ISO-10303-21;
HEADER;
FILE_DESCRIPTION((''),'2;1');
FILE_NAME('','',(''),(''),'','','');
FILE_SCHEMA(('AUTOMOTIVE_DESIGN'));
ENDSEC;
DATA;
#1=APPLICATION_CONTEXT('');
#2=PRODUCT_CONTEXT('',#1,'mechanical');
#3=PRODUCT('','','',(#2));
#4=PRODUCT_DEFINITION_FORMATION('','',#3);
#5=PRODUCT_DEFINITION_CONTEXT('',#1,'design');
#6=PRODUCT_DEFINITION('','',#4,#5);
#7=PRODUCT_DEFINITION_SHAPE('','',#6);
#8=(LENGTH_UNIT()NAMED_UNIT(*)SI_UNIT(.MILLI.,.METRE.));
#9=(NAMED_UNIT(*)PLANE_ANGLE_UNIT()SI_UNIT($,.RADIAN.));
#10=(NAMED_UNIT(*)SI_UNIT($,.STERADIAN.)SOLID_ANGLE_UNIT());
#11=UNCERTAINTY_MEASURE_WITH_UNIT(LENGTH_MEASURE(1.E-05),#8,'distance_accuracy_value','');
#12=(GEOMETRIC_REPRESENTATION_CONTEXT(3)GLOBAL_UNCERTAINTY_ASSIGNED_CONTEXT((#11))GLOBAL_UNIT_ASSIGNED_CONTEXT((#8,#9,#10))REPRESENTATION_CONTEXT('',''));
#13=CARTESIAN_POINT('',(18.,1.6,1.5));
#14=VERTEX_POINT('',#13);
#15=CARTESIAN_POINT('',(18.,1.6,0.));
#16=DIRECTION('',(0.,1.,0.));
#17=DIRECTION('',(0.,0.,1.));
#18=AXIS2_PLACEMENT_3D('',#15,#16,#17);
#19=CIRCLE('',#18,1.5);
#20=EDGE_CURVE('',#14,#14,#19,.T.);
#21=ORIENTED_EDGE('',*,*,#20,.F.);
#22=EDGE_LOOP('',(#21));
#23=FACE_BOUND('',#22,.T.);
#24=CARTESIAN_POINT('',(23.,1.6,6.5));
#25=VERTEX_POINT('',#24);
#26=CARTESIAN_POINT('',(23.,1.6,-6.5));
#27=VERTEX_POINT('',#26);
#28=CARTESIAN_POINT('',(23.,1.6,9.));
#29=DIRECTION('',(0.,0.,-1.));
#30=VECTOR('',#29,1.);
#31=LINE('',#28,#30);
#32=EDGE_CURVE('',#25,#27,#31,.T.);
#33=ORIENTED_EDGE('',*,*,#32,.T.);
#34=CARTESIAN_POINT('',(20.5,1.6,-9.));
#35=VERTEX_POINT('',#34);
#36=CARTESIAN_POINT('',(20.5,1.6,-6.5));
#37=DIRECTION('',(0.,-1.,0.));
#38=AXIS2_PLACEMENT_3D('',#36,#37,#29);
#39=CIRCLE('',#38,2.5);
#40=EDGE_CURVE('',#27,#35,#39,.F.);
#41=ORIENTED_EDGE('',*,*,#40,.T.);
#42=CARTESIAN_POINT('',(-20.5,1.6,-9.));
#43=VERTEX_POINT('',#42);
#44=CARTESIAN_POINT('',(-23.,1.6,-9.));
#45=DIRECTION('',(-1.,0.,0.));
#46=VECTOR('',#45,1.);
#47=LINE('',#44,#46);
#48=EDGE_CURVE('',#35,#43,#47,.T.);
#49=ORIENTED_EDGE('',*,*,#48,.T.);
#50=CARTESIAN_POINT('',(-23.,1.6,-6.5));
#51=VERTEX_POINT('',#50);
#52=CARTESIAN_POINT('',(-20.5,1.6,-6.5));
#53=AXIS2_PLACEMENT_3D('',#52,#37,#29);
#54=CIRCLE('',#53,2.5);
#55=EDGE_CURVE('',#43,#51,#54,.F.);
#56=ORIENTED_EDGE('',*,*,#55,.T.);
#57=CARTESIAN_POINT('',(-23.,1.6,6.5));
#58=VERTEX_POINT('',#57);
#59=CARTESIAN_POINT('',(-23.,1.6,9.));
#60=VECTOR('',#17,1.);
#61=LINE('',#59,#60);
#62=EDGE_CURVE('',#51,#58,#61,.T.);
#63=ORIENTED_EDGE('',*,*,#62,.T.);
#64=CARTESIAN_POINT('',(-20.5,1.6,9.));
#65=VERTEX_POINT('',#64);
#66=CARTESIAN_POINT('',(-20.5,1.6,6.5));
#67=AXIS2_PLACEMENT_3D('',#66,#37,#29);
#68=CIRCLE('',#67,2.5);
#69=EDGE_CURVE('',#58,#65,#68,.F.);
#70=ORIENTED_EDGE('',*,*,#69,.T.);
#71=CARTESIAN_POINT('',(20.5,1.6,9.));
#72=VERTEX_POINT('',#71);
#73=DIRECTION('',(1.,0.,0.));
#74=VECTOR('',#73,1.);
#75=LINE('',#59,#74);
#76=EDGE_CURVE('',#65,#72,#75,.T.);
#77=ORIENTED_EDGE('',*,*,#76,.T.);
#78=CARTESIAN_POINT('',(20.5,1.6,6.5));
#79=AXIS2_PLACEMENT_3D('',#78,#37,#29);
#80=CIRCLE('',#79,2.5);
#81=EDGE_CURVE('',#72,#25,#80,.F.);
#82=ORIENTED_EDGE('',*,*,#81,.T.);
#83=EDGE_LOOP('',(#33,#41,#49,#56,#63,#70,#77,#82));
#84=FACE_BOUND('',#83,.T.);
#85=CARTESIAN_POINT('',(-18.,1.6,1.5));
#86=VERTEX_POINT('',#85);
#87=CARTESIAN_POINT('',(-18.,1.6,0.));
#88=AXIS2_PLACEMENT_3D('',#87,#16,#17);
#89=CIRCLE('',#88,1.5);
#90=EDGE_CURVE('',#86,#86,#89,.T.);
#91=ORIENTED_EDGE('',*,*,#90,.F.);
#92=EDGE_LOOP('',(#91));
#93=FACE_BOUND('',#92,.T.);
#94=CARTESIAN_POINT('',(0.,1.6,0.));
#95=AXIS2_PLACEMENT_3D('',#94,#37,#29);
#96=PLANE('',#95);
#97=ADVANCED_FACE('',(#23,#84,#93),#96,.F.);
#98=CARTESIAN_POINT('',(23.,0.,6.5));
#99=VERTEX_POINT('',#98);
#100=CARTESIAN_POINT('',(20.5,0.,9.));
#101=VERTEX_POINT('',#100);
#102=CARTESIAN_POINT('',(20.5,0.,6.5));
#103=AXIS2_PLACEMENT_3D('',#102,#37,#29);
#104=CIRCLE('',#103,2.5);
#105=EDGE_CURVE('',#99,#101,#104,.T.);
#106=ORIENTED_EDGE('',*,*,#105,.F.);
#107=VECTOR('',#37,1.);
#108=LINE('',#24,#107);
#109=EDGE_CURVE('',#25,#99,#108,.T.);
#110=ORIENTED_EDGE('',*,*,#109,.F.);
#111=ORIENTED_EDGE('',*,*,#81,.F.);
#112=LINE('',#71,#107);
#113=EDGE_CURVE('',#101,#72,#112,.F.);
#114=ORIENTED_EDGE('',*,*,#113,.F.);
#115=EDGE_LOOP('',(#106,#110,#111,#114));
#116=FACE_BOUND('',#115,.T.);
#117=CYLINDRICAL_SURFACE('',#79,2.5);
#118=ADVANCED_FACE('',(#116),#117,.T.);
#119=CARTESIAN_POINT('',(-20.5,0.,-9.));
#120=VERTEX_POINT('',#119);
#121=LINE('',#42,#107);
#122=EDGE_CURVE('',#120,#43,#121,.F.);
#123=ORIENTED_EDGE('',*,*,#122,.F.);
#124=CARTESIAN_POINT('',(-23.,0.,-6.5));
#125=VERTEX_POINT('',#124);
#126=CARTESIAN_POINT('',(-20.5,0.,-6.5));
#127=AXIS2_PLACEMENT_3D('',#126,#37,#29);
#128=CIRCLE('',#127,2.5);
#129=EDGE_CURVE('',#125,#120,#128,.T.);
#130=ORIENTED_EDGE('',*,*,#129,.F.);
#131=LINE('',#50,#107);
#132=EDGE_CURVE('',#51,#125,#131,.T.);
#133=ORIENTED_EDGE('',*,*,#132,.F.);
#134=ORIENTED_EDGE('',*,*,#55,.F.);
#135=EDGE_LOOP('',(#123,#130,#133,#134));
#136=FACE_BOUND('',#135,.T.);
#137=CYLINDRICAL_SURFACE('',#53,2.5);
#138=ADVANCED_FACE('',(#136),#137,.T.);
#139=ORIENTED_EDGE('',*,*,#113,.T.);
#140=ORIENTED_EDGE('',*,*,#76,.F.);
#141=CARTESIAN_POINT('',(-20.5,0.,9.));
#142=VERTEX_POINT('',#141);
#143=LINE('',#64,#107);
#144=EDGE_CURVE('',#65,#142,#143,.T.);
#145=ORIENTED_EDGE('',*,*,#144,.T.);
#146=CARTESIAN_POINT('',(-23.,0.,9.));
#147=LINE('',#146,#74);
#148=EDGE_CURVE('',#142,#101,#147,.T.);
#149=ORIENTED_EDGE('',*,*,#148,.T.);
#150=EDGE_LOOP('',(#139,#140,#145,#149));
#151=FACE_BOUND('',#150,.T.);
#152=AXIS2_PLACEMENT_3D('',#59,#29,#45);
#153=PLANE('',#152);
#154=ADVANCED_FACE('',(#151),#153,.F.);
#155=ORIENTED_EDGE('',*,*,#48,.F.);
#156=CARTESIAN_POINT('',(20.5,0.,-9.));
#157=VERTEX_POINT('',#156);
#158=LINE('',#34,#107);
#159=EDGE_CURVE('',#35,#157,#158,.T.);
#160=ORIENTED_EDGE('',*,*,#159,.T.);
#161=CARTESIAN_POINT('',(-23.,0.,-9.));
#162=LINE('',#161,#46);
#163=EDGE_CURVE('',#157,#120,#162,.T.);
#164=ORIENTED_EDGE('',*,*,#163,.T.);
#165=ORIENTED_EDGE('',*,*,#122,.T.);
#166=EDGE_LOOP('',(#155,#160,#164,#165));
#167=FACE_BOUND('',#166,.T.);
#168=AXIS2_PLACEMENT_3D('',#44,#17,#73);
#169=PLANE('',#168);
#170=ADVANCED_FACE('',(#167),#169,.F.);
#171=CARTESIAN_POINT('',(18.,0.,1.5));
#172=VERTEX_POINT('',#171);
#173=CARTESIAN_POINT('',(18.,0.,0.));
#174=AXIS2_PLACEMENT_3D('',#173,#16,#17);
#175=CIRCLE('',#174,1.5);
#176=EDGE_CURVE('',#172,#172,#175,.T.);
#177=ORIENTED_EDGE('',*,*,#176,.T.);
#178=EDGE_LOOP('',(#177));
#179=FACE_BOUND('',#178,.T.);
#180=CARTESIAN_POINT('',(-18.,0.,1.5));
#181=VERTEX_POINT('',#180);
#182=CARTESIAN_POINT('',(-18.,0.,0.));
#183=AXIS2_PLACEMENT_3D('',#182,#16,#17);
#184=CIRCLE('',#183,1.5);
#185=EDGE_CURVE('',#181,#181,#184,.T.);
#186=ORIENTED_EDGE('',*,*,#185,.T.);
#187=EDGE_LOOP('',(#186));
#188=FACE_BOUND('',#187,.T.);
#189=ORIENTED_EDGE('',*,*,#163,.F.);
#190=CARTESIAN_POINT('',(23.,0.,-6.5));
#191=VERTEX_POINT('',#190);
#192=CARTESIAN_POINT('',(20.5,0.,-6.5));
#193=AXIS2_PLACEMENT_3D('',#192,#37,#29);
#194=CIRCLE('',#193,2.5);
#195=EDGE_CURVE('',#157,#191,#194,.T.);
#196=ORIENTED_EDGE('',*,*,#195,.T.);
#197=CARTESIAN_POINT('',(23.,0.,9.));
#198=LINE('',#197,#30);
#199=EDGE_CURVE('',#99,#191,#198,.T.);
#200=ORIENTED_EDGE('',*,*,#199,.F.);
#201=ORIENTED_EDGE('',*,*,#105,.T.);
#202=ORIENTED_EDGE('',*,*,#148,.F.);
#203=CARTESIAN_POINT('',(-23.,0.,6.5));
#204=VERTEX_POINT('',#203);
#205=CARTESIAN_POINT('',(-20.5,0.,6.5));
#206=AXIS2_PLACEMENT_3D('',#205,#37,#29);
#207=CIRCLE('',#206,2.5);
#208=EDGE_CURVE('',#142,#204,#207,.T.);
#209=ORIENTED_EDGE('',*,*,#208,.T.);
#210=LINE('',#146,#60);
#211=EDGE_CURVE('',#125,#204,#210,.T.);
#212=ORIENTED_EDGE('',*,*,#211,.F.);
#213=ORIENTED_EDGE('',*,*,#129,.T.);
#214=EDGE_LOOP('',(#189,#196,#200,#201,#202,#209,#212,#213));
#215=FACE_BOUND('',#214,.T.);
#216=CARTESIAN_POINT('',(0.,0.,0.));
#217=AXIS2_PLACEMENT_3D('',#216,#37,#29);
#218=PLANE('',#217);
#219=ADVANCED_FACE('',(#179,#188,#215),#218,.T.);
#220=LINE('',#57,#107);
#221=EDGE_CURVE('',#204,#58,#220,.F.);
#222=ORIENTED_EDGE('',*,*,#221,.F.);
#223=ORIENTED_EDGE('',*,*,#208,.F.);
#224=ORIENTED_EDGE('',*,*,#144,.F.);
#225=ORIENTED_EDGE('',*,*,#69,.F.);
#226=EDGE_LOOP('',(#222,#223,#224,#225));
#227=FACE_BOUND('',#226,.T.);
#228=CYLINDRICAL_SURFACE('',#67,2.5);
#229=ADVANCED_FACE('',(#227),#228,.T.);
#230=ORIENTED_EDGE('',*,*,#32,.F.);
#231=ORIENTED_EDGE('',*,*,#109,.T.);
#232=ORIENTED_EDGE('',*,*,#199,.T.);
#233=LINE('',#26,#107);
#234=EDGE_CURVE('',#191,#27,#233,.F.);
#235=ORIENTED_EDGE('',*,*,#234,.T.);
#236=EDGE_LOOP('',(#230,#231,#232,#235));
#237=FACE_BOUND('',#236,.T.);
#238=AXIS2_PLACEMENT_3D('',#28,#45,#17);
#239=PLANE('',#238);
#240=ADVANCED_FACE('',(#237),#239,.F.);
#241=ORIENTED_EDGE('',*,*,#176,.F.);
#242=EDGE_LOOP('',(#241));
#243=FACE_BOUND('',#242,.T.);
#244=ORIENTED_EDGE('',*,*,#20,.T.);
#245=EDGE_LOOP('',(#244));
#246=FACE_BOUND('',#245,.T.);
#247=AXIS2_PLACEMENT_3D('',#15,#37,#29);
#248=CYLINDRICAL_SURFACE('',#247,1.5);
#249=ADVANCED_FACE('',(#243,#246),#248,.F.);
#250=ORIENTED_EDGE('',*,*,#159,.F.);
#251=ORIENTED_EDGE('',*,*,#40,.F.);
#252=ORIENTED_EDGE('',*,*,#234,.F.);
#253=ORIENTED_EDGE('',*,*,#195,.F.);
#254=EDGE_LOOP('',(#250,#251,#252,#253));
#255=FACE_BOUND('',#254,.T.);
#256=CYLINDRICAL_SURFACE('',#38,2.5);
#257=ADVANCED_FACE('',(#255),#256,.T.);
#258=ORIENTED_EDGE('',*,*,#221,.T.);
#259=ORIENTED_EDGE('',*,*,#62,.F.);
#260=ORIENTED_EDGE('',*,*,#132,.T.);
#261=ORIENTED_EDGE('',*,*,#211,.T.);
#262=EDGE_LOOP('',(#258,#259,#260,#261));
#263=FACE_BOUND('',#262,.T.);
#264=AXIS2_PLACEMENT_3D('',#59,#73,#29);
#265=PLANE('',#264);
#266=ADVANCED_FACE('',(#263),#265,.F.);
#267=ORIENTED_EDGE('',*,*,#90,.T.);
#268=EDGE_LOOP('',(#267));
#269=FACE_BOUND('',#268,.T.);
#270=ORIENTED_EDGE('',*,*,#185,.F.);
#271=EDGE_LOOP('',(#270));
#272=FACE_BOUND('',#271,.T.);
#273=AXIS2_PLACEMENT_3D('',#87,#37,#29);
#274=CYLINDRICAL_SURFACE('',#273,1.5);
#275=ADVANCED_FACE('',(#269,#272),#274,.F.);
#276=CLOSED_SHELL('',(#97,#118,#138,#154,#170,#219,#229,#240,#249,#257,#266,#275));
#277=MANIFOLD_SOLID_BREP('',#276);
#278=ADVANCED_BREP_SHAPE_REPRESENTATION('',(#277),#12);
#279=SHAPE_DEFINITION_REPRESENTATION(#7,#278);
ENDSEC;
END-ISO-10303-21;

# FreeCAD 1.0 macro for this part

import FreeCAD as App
import Part
import Sketcher

V = App.Vector


def edges_at(feature, points):
    """Names of the edges that pass closest to the given points."""
    edges = feature.Shape.Edges
    near = lambda p: min(range(len(edges)), key=lambda i: edges[i].distToShape(Part.Vertex(*p))[0])
    return sorted({f"Edge{near(p) + 1}" for p in points})

doc = App.newDocument("Part")
body = doc.addObject("PartDesign::Body", "Body")

sketch1 = doc.addObject("Sketcher::SketchObject", "Sketch")
body.addObject(sketch1)
sketch1.AttachmentSupport = (doc.XZ_Plane, [""])
sketch1.MapMode = "FlatFace"
sketch1.addGeometry(Part.LineSegment(V(-23, -9, 0), V(-23, 9, 0)), False)
sketch1.addGeometry(Part.LineSegment(V(-23, 9, 0), V(23, 9, 0)), False)
sketch1.addGeometry(Part.LineSegment(V(23, 9, 0), V(23, -9, 0)), False)
sketch1.addGeometry(Part.LineSegment(V(23, -9, 0), V(-23, -9, 0)), False)
sketch1.addGeometry(Part.Circle(V(-18, 0, 0), V(0, 0, 1), 1.5), False)
sketch1.addGeometry(Part.Circle(V(18, 0, 0), V(0, 0, 1), 1.5), False)
sketch1.addConstraint(Sketcher.Constraint("Coincident", 0, 2, 1, 1))
sketch1.addConstraint(Sketcher.Constraint("Coincident", 1, 2, 2, 1))
sketch1.addConstraint(Sketcher.Constraint("Coincident", 2, 2, 3, 1))
sketch1.addConstraint(Sketcher.Constraint("Coincident", 3, 2, 0, 1))
sketch1.addConstraint(Sketcher.Constraint("Vertical", 0))
sketch1.addConstraint(Sketcher.Constraint("Horizontal", 1))
sketch1.addConstraint(Sketcher.Constraint("Vertical", 2))
sketch1.addConstraint(Sketcher.Constraint("Horizontal", 3))
sketch1.addConstraint(Sketcher.Constraint("Equal", 4, 5))
sketch1.addConstraint(Sketcher.Constraint("Symmetric", 4, 3, 5, 3, -1, 1))
sketch1.addConstraint(Sketcher.Constraint("Symmetric", 0, 2, 2, 2, -1, 1))
sketch1.addConstraint(Sketcher.Constraint("PointOnObject", 4, 3, -1))
sketch1.addConstraint(Sketcher.Constraint("Diameter", 4, 3.0))
sketch1.addConstraint(Sketcher.Constraint("DistanceX", 1, 1, 1, 2, 46.0))
sketch1.addConstraint(Sketcher.Constraint("DistanceY", 0, 1, 0, 2, 18.0))
sketch1.addConstraint(Sketcher.Constraint("DistanceX", 4, 3, -1, 1, 18.0))
pad1 = doc.addObject("PartDesign::Pad", "Pad")
body.addObject(pad1)
pad1.Profile = sketch1
pad1.Length = 1.6
pad1.Reversed = True
doc.recompute()

fillet = doc.addObject("PartDesign::Fillet", "Fillet")
body.addObject(fillet)
fillet.Base = (pad1, edges_at(pad1, [
    (23, 0.8, 9),
    (-23, 0.8, 9),
    (-23, 0.8, -9),
    (23, 0.8, -9),
]))
fillet.Radius = 2.5

doc.recompute()
